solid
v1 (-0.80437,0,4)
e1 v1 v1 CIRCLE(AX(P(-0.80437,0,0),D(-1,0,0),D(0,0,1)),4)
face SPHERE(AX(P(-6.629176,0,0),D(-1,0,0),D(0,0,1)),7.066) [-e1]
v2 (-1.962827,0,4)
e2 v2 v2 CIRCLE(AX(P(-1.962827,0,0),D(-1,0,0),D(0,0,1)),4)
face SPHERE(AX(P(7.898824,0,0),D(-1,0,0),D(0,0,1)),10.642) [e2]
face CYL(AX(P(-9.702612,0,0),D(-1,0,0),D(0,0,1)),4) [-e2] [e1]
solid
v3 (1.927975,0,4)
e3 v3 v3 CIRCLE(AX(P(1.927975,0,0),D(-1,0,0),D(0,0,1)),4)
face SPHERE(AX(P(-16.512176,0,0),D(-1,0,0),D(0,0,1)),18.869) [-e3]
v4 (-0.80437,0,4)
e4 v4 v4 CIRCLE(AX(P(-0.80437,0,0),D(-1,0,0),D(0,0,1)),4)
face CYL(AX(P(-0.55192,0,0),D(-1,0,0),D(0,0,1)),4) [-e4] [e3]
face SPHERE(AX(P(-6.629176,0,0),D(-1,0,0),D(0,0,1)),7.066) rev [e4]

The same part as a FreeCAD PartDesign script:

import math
import FreeCAD as App
import Part
import Sketcher

doc = App.newDocument("Part")
body = doc.addObject("PartDesign::Body", "Body")

# Sketch on XZ plane
sketch1 = body.newObject("Sketcher::SketchObject", "Sketch")
sketch1.AttachmentSupport = (doc.getObject("XZ_Plane"), [""])
sketch1.MapMode = "FlatFace"
sketch1.addGeometry(Part.ArcOfCircle(Part.Circle(App.Vector(7.9, 0, 0), App.Vector(0, 0, 1), 10.6), math.radians(-180), math.radians(-158)), False)
sketch1.addGeometry(Part.LineSegment(App.Vector(-2.7, 0, 0), App.Vector(0.4, 0, 0)), False)
sketch1.addGeometry(Part.ArcOfCircle(Part.Circle(App.Vector(-6.6, 0, 0), App.Vector(0, 0, 1), 7.1), math.radians(-34), math.radians(0)), False)
sketch1.addGeometry(Part.LineSegment(App.Vector(-0.8, -4, 0), App.Vector(-2, -4, 0)), False)
sketch1.addConstraint(Sketcher.Constraint("Coincident", 0, 1, 1, 1))
sketch1.addConstraint(Sketcher.Constraint("Coincident", 1, 2, 2, 2))
sketch1.addConstraint(Sketcher.Constraint("Coincident", 2, 1, 3, 1))
sketch1.addConstraint(Sketcher.Constraint("Coincident", 3, 2, 0, 2))
sketch1.addConstraint(Sketcher.Constraint("Horizontal", 1))
sketch1.addConstraint(Sketcher.Constraint("Horizontal", 3))
sketch1.addConstraint(Sketcher.Constraint("PointOnObject", 0, 3, -1))
sketch1.addConstraint(Sketcher.Constraint("PointOnObject", 2, 3, -1))
sketch1.addConstraint(Sketcher.Constraint("PointOnObject", 0, 1, -1))
sketch1.addConstraint(Sketcher.Constraint("DistanceY", 2, 1, -1, 1, 4.0))
sketch1.addConstraint(Sketcher.Constraint("Radius", 0, 10.642))
sketch1.addConstraint(Sketcher.Constraint("Radius", 2, 7.066))
sketch1.addConstraint(Sketcher.Constraint("DistanceX", 1, 1, 1, 2, 3.18))
sketch1.addConstraint(Sketcher.Constraint("DistanceX", 2, 1, -1, 1, 0.80437))
revolution = body.newObject("PartDesign::Revolution", "Revolution")
revolution.Profile = sketch1
revolution.ReferenceAxis = (sketch1, ["H_Axis"])
revolution.Angle = 360
body2 = doc.addObject("PartDesign::Body", "Body001")

# Sketch on XZ plane
sketch2 = body2.newObject("Sketcher::SketchObject", "Sketch001")
sketch2.AttachmentSupport = (doc.getObject("XZ_Plane001"), [""])
sketch2.MapMode = "FlatFace"
sketch2.addGeometry(Part.LineSegment(App.Vector(1.9, -4, 0), App.Vector(-0.8, -4, 0)), False)
sketch2.addGeometry(Part.ArcOfCircle(Part.Circle(App.Vector(-6.6, 0, 0), App.Vector(0, 0, 1), 7.1), math.radians(-34), math.radians(0)), False)
sketch2.addGeometry(Part.LineSegment(App.Vector(0.4, 0, 0), App.Vector(2.4, 0, 0)), False)
sketch2.addGeometry(Part.ArcOfCircle(Part.Circle(App.Vector(-16.5, 0, 0), App.Vector(0, 0, 1), 18.9), math.radians(-12.24), math.radians(0)), False)
sketch2.addConstraint(Sketcher.Constraint("Coincident", 0, 2, 1, 1))
sketch2.addConstraint(Sketcher.Constraint("Coincident", 1, 2, 2, 1))
sketch2.addConstraint(Sketcher.Constraint("Coincident", 2, 2, 3, 2))
sketch2.addConstraint(Sketcher.Constraint("Coincident", 3, 1, 0, 1))
sketch2.addConstraint(Sketcher.Constraint("Horizontal", 0))
sketch2.addConstraint(Sketcher.Constraint("Horizontal", 2))
sketch2.addConstraint(Sketcher.Constraint("PointOnObject", 1, 3, -1))
sketch2.addConstraint(Sketcher.Constraint("PointOnObject", 3, 3, -1))
sketch2.addConstraint(Sketcher.Constraint("PointOnObject", 1, 2, -1))
sketch2.addConstraint(Sketcher.Constraint("DistanceY", 0, 2, -1, 1, 4.0))
sketch2.addConstraint(Sketcher.Constraint("Radius", 1, 7.066))
sketch2.addConstraint(Sketcher.Constraint("Radius", 3, 18.869))
sketch2.addConstraint(Sketcher.Constraint("DistanceX", 2, 1, 2, 2, 1.92))
sketch2.addConstraint(Sketcher.Constraint("DistanceX", 0, 2, -1, 1, 0.80437))
revolution2 = body2.newObject("PartDesign::Revolution", "Revolution001")
revolution2.Profile = sketch2
revolution2.ReferenceAxis = (sketch2, ["H_Axis"])
revolution2.Angle = 360

doc.recompute()
